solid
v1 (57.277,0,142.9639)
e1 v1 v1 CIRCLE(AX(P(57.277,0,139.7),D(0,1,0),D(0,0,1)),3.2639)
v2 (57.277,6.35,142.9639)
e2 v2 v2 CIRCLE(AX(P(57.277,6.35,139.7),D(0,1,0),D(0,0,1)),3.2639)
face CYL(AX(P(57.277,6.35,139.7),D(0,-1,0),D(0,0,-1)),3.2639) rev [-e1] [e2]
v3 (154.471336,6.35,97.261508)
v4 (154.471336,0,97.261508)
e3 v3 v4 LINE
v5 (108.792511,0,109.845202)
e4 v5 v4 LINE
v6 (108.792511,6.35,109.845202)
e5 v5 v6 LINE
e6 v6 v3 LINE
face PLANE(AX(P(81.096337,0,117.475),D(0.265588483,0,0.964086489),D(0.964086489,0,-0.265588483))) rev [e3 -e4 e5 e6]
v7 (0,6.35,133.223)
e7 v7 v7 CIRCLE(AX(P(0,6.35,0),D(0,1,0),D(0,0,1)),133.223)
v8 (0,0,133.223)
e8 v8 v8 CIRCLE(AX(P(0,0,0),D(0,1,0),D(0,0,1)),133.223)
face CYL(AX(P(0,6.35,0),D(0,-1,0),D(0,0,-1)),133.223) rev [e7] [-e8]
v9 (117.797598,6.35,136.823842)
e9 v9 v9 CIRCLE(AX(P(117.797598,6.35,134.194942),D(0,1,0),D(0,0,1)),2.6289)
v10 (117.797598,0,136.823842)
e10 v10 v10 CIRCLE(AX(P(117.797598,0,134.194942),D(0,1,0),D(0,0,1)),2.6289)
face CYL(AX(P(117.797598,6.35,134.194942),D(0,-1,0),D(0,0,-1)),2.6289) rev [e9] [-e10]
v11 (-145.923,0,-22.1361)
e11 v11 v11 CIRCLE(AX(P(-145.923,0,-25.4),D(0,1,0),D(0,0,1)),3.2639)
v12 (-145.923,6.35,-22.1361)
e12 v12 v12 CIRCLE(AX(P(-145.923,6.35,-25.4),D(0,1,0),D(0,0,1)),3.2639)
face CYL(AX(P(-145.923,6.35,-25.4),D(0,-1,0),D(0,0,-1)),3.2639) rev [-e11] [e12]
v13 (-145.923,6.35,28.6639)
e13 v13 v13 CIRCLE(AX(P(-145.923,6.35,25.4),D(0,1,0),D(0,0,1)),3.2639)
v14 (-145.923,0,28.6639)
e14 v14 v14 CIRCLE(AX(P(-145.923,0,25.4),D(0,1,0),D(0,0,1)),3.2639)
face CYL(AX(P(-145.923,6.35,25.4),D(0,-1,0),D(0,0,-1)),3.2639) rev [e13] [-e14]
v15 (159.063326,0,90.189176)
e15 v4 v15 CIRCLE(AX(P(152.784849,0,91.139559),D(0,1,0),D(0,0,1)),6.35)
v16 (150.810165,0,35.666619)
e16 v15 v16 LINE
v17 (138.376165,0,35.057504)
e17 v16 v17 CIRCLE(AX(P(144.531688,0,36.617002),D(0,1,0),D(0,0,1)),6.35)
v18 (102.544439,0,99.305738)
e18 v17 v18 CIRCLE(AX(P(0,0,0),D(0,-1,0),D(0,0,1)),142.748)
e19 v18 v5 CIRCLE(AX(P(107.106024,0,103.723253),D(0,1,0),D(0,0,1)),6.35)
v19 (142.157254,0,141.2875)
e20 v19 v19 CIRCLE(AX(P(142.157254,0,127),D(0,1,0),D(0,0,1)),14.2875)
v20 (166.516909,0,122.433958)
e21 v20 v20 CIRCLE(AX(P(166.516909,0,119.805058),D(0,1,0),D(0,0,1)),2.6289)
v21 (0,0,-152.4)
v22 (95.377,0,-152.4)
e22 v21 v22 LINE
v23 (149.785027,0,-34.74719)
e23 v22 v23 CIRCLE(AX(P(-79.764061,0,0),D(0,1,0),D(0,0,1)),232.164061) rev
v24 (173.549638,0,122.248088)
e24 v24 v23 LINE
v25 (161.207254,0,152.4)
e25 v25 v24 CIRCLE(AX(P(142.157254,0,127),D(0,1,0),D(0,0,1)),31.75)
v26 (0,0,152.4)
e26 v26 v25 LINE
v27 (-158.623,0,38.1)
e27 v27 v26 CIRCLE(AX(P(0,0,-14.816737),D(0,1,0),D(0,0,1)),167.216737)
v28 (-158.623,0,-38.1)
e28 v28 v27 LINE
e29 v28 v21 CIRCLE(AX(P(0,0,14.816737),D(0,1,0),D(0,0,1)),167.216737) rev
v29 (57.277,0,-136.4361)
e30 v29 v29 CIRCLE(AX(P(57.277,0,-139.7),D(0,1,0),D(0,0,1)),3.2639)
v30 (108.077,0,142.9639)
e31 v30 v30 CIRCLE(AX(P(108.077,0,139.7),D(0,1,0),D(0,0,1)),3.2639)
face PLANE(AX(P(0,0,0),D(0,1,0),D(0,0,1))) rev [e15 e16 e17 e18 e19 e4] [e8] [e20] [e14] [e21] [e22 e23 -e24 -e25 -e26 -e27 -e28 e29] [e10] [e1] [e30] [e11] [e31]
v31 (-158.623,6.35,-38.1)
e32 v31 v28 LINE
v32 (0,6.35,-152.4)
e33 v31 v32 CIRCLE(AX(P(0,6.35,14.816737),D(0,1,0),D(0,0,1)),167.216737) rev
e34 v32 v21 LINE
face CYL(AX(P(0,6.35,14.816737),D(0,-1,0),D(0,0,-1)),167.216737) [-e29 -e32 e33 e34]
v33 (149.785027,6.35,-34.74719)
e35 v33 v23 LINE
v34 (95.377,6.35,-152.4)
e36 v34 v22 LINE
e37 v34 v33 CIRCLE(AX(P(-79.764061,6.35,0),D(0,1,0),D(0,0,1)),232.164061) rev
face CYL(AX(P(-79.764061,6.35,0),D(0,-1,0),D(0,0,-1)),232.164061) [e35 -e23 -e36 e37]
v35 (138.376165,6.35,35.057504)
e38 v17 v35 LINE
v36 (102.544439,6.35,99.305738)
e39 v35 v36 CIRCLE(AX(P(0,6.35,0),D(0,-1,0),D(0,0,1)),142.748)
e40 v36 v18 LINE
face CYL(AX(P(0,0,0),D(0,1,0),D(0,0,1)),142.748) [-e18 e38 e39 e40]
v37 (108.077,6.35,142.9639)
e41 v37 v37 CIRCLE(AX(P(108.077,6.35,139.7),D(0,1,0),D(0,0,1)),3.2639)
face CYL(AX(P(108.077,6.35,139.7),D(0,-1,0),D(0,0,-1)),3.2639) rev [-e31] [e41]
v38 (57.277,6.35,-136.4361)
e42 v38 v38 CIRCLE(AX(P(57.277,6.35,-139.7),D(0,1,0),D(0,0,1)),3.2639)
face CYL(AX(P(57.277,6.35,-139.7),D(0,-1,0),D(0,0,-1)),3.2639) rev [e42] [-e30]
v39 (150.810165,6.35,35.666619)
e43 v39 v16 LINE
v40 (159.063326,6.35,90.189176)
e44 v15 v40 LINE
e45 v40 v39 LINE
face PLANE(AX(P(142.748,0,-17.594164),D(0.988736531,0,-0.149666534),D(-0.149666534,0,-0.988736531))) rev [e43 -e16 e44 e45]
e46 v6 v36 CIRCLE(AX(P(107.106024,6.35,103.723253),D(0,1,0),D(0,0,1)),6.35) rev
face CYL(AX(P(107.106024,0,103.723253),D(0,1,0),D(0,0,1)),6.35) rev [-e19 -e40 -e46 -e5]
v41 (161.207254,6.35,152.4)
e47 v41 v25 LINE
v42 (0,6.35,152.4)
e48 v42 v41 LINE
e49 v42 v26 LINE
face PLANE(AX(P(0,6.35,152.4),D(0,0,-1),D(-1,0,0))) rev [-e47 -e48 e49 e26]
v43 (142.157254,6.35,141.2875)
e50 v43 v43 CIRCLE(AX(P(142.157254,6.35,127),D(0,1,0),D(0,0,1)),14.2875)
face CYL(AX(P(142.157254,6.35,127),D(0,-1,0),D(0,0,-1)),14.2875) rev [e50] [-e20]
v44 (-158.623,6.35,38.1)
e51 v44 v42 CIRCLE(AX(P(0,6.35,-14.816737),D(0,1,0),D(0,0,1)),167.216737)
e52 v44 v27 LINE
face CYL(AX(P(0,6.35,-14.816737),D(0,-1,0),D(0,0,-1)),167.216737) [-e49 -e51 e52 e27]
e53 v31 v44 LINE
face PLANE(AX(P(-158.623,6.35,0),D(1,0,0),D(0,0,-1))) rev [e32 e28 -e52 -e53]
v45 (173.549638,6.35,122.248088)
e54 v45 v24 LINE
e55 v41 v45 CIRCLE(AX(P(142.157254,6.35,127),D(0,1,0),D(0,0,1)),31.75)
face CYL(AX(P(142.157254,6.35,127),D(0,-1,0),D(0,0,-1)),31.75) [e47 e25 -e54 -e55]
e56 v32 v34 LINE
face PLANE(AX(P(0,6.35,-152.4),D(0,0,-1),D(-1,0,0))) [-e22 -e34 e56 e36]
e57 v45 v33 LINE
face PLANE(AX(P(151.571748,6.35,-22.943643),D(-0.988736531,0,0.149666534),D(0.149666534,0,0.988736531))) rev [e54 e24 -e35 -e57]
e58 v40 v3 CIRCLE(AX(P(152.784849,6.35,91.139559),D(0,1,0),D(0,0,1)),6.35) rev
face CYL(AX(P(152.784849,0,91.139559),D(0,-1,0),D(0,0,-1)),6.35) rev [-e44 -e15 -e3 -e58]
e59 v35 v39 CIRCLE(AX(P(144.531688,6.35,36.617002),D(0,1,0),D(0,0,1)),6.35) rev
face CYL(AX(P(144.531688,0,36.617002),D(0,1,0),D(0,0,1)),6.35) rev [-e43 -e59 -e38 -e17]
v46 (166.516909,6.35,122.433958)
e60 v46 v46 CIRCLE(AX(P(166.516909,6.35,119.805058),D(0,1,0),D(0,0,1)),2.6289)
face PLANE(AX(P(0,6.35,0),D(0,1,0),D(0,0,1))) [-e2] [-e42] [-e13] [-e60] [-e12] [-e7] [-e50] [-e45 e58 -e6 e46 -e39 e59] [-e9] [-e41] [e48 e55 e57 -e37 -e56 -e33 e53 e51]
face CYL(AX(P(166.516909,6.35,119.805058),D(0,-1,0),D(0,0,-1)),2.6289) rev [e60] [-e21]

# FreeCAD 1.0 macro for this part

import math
import FreeCAD as App
import Part
import Sketcher
from FreeCAD import Vector
Q = App.Units.Quantity


def edges_at(feature, points):
    """Names of the edges that pass closest to the given points."""
    edges = feature.Shape.Edges
    near = lambda p: min(range(len(edges)), key=lambda i: edges[i].distToShape(Part.Vertex(*p))[0])
    return sorted({f"Edge{near(p) + 1}" for p in points})

doc = App.newDocument("Part")
body = doc.addObject("PartDesign::Body", "Body")

# Sketch on XZ plane
sketch1 = body.newObject("Sketcher::SketchObject", "Sketch")
sketch1.AttachmentSupport = (doc.getObject("XZ_Plane"), [""])
sketch1.MapMode = "FlatFace"
sketch1.addGeometry([
    Part.LineSegment(Vector(95.4, -152.4, 0), Vector(0, -152.4, 0)),  # 0
    Part.ArcOfCircle(Part.Circle(Vector(0, 14.8, 0), Vector(0, 0, 1), 167.2), math.radians(-162), math.radians(-90)),  # 1
    Part.LineSegment(Vector(-158.6, -38.1, 0), Vector(-158.6, 38.1, 0)),  # 2
    Part.ArcOfCircle(Part.Circle(Vector(0, -14.8, 0), Vector(0, 0, 1), 167.2), math.radians(90), math.radians(162)),  # 3
    Part.LineSegment(Vector(0, 152.4, 0), Vector(161.2, 152.4, 0)),  # 4
    Part.ArcOfCircle(Part.Circle(Vector(142.2, 127, 0), Vector(0, 0, 1), 31.8), math.radians(-9), math.radians(53)),  # 5
    Part.LineSegment(Vector(173.5, 122.2, 0), Vector(149.8, -34.7, 0)),  # 6
    Part.ArcOfCircle(Part.Circle(Vector(-79.8, 0, 0), Vector(0, 0, 1), 232.2), math.radians(-41), math.radians(-9)),  # 7
    Part.Circle(Vector(-145.9, 25.4, 0), Vector(0, 0, 1), 3.3),  # 8
    Part.Circle(Vector(57.3, 139.7, 0), Vector(0, 0, 1), 3.3),  # 9
    Part.Circle(Vector(108.1, 139.7, 0), Vector(0, 0, 1), 3.3),  # 10
    Part.Circle(Vector(117.8, 134.2, 0), Vector(0, 0, 1), 2.6),  # 11
    Part.Circle(Vector(142.2, 127, 0), Vector(0, 0, 1), 14.3),  # 12
    Part.Circle(Vector(166.5, 119.8, 0), Vector(0, 0, 1), 2.6),  # 13
    Part.Circle(Vector(-145.9, -25.4, 0), Vector(0, 0, 1), 3.3),  # 14
    Part.Circle(Vector(0, 0, 0), Vector(0, 0, 1), 133.2),  # 15
    Part.Circle(Vector(57.3, -139.7, 0), Vector(0, 0, 1), 3.3),  # 16
], False)
sketch1.addConstraint([
    Sketcher.Constraint("Tangent", 0, 2, 1, 2),
    Sketcher.Constraint("Coincident", 1, 1, 2, 1),
    Sketcher.Constraint("Coincident", 2, 2, 3, 2),
    Sketcher.Constraint("Tangent", 3, 1, 4, 1),
    Sketcher.Constraint("Coincident", 4, 2, 5, 2),
    Sketcher.Constraint("Tangent", 5, 1, 6, 1),
    Sketcher.Constraint("Tangent", 6, 2, 7, 2),
    Sketcher.Constraint("Coincident", 7, 1, 0, 1),
    Sketcher.Constraint("Horizontal", 0),
    Sketcher.Constraint("Vertical", 2),
    Sketcher.Constraint("Horizontal", 4),
    Sketcher.Constraint("Coincident", 15, 3, -1, 1),
    Sketcher.Constraint("Coincident", 12, 3, 5, 3),
    Sketcher.Constraint("Equal", 1, 3),
    Sketcher.Constraint("Equal", 8, 9),
    Sketcher.Constraint("Equal", 9, 10),
    Sketcher.Constraint("Equal", 11, 13),
    Sketcher.Constraint("Equal", 10, 14),
    Sketcher.Constraint("Equal", 14, 16),
    Sketcher.Constraint("Symmetric", 1, 3, 3, 3, -1, 1),
    Sketcher.Constraint("Symmetric", 8, 3, 14, 3, -1),
    Sketcher.Constraint("Symmetric", 9, 3, 16, 3, -1),
    Sketcher.Constraint("PointOnObject", 1, 3, -2),
    Sketcher.Constraint("PointOnObject", 7, 3, -1),
    Sketcher.Constraint("Horizontal", 9, 3, 10, 3),
    Sketcher.Constraint("Diameter", 15, Q("10.49 in")),
    Sketcher.Constraint("DistanceY", 2, 1, 2, 2, Q("3 in")),
    Sketcher.Constraint("Radius", 5, Q("1.25 in")),
    Sketcher.Constraint("Diameter", 8, Q("0.257 in")),
    Sketcher.Constraint("Diameter", 11, Q("0.207 in")),
    Sketcher.Constraint("Diameter", 12, Q("1.125 in")),
    Sketcher.Constraint("DistanceY", -1, 1, 5, 3, Q("5 in")),
    Sketcher.Constraint("DistanceY", -1, 1, 8, 3, Q("1 in")),
    Sketcher.Constraint("DistanceY", 0, 2, -1, 1, Q("6 in")),
    Sketcher.Constraint("DistanceX", 8, 3, 9, 3, Q("8 in")),
    Sketcher.Constraint("DistanceX", 9, 3, 10, 3, Q("2 in")),
    Sketcher.Constraint("DistanceY", -1, 1, 9, 3, Q("5.5 in")),
    Sketcher.Constraint("DistanceX", 1, 1, 14, 3, Q("0.5 in")),
    Sketcher.Constraint("DistanceX", 16, 3, 7, 1, Q("1.5 in")),
    Sketcher.Constraint("DistanceX", 0, 2, 0, 1, Q("3.755 in")),
    Sketcher.Constraint("Radius", 7, 232.164061),
    Sketcher.Constraint("DistanceX", -1, 1, 11, 3, 117.797598),
    Sketcher.Constraint("DistanceX", 4, 1, 4, 2, 161.207254),
    Sketcher.Constraint("DistanceX", -1, 1, 13, 3, 166.516909),
    Sketcher.Constraint("DistanceY", 3, 3, 11, 3, 149.011679),
    Sketcher.Constraint("DistanceY", 13, 3, 5, 1, 2.44303),
])
pad1 = body.newObject("PartDesign::Pad", "Pad")
pad1.Profile = sketch1
pad1.Length = Q("0.25 in")
pad1.Reversed = True

# Sketch on XZ plane
sketch2 = body.newObject("Sketcher::SketchObject", "Sketch001")
sketch2.AttachmentSupport = (doc.getObject("XZ_Plane"), [""])
sketch2.MapMode = "FlatFace"
sketch2.AttachmentOffset = App.Placement(Vector(0, 0, -0.25 * 25.4), App.Rotation())
sketch2.addGeometry([
    Part.LineSegment(Vector(81, 117, 0), Vector(160, 96, 0)),
    Part.LineSegment(Vector(160, 96, 0), Vector(143, -18, 0)),
    Part.LineSegment(Vector(143, -18, 0), Vector(143, 0, 0)),
    Part.ArcOfCircle(Part.Circle(Vector(0, 0, 0), Vector(0, 0, 1), 143), math.radians(0), math.radians(55)),
], False)
sketch2.addConstraint([
    Sketcher.Constraint("Coincident", 0, 2, 1, 1),
    Sketcher.Constraint("Coincident", 1, 2, 2, 1),
    Sketcher.Constraint("Tangent", 2, 2, 3, 1),
    Sketcher.Constraint("Coincident", 3, 2, 0, 1),
    Sketcher.Constraint("Vertical", 2),
    Sketcher.Constraint("Coincident", 3, 3, -1, 1),
    Sketcher.Constraint("Radius", 3, Q("5.62 in")),
    Sketcher.Constraint("DistanceY", -1, 1, 3, 2, Q("4.625 in")),
    Sketcher.Constraint("DistanceX", -1, 1, 0, 2, 159.907199),
    Sketcher.Constraint("Distance", 1, 114.649541),
    Sketcher.Constraint("DistanceY", 2, 1, 2, 2, 17.594164),
])
pocket1 = body.newObject("PartDesign::Pocket", "Pocket")
pocket1.Profile = sketch2
pocket1.Length = Q("0.25 in")
pocket1.Reversed = True
doc.recompute()

fillet = body.newObject("PartDesign::Fillet", "Fillet")
fillet.Base = (pocket1, edges_at(pocket1, [(81.096, 3.175, 117.475), (142.748, 3.175, -17.594), (159.907, 3.175, 95.764)]))
fillet.Radius = Q("0.25 in")

doc.recompute()
